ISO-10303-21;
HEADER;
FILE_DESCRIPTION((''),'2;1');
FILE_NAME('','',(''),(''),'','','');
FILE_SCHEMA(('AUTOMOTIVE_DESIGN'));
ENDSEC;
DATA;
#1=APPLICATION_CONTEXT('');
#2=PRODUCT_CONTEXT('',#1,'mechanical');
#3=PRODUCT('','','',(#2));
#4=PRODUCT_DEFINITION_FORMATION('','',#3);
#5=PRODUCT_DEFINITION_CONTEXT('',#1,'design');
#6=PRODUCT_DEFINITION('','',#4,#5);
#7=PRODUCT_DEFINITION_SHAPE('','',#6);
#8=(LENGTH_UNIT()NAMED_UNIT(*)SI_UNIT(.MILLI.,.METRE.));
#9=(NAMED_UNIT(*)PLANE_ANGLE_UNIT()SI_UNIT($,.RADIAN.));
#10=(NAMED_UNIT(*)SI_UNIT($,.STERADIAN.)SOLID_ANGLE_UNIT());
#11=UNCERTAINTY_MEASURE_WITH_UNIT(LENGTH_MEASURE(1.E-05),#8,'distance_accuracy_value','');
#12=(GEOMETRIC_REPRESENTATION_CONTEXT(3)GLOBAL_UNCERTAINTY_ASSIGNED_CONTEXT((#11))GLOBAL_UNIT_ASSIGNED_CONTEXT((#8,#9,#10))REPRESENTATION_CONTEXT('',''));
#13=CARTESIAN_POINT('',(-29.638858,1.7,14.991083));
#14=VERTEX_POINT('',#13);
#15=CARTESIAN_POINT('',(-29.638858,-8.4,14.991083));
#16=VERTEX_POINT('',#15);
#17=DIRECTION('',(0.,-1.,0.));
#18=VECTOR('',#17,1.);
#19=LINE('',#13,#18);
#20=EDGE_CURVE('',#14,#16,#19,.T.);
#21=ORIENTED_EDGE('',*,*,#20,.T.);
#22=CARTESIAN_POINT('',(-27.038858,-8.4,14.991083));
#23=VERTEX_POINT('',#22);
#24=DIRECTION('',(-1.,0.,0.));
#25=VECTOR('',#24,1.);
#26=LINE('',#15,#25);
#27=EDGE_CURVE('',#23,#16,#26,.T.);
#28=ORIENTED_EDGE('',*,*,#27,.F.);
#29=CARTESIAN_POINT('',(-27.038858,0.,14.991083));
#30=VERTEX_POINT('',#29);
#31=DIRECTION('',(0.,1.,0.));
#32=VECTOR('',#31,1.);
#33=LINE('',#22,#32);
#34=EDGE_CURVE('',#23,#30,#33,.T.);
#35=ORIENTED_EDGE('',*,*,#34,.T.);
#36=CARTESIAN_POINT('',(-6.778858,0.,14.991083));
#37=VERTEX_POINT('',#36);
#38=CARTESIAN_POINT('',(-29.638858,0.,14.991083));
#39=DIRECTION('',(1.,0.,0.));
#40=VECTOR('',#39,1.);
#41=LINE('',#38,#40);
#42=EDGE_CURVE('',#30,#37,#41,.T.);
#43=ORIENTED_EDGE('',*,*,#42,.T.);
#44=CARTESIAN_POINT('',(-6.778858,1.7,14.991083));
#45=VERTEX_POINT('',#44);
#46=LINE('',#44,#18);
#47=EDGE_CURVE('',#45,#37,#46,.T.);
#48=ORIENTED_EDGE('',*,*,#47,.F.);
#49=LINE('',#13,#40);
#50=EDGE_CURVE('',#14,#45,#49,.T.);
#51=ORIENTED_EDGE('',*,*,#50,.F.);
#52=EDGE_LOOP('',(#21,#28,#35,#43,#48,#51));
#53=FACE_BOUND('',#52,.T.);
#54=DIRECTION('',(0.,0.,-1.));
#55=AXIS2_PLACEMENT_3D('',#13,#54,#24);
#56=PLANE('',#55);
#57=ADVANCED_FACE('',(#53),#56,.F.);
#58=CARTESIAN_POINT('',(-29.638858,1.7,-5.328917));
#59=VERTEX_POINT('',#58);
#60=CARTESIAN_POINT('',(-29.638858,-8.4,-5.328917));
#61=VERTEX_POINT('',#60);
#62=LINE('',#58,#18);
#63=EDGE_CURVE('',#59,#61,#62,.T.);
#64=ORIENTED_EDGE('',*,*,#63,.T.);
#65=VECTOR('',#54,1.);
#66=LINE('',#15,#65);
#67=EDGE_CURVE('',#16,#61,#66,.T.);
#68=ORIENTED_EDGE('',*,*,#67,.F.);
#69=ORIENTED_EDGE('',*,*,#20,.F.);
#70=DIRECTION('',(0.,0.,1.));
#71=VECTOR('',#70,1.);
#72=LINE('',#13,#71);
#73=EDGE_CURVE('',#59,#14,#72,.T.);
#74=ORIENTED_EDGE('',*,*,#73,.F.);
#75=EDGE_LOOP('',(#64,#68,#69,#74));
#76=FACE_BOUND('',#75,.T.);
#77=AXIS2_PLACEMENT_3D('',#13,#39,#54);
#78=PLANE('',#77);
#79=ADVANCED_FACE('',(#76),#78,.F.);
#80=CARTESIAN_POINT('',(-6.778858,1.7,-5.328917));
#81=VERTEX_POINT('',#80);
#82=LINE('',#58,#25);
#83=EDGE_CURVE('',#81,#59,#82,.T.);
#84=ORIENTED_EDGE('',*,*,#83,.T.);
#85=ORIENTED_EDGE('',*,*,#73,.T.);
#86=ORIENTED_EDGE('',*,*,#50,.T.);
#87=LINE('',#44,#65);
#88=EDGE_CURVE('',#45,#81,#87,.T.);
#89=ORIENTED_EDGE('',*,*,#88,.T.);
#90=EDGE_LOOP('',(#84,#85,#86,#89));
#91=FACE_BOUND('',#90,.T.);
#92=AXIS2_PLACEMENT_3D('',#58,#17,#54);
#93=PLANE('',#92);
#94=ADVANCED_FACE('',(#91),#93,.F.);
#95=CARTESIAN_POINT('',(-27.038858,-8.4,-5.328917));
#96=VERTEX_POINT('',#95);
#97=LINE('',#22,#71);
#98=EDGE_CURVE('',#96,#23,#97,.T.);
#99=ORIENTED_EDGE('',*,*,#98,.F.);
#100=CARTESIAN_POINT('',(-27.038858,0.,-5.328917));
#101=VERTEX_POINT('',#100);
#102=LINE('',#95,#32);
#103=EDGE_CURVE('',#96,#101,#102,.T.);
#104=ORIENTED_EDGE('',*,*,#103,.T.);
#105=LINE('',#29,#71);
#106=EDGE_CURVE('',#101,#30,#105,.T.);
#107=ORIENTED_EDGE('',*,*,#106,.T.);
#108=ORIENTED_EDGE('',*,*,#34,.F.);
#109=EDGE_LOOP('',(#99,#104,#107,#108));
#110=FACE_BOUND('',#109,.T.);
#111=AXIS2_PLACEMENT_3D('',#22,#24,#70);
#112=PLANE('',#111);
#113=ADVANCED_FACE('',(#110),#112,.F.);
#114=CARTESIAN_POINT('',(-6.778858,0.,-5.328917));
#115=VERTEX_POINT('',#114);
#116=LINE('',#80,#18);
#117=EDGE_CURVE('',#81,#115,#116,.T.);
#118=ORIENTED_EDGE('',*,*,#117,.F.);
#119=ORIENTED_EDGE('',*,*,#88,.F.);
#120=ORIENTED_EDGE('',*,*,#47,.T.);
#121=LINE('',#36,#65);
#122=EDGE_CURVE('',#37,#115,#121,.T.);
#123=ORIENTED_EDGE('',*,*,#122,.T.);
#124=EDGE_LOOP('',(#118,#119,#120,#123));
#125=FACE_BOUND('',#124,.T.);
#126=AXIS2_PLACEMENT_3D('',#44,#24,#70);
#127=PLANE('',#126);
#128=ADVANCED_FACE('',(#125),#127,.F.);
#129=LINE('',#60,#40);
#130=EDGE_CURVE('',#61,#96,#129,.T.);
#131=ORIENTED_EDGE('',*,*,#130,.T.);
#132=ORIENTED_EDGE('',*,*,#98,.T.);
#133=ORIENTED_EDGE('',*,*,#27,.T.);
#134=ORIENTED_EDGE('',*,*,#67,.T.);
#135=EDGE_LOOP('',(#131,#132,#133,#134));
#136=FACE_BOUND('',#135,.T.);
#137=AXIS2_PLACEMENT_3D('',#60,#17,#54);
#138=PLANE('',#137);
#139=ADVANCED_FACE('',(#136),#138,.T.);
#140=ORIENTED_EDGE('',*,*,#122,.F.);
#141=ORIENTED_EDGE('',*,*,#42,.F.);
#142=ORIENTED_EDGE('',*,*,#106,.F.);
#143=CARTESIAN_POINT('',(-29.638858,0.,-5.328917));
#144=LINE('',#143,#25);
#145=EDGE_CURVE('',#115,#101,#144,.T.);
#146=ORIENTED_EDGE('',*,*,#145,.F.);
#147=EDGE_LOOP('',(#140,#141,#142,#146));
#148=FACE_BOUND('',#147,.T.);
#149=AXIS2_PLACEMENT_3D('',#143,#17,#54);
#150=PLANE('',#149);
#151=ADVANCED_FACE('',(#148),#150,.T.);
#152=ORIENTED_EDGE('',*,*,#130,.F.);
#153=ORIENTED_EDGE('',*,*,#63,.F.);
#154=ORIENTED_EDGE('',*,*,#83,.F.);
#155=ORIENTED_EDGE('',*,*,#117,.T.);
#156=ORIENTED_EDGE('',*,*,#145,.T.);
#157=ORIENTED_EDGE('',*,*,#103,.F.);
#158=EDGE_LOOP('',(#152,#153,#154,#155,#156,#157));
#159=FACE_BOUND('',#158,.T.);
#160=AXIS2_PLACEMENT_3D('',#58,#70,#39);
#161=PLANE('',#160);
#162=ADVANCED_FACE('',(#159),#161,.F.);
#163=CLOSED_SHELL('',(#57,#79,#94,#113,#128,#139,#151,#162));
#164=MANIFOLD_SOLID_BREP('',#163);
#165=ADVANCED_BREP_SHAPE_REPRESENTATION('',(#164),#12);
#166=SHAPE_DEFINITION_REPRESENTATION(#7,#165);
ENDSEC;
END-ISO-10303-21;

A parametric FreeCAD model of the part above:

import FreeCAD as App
import Part
import Sketcher
from FreeCAD import Vector
Q = App.Units.Quantity


def add_polygon(sketch, points):
    """Adds a closed chain of lines whose ends are joined by coincident constraints."""
    first, n = sketch.GeometryCount, len(points)
    for a, b in zip(points, points[1:] + points[:1]):
        sketch.addGeometry(Part.LineSegment(App.Vector(*a, 0), App.Vector(*b, 0)), False)
    for i in range(n):
        sketch.addConstraint(Sketcher.Constraint("Coincident", first + i, 2, first + (i + 1) % n, 1))

doc = App.newDocument("Part")
body = doc.addObject("PartDesign::Body", "Body")

# Sketch on XZ plane
sketch1 = body.newObject("Sketcher::SketchObject", "Sketch")
sketch1.AttachmentSupport = (doc.getObject("XZ_Plane"), [""])
sketch1.MapMode = "FlatFace"
add_polygon(sketch1, [(-30, -5), (-30, 15), (-7, 15), (-7, -5)])  # lines 0-3
sketch1.addConstraint([
    Sketcher.Constraint("Vertical", 0),
    Sketcher.Constraint("Horizontal", 1),
    Sketcher.Constraint("Vertical", 2),
    Sketcher.Constraint("Horizontal", 3),
    Sketcher.Constraint("DistanceX", 1, 1, 1, 2, Q("22.86 mm")),
    Sketcher.Constraint("DistanceY", 0, 1, 0, 2, Q("20.32 mm")),
    Sketcher.Constraint("DistanceX", 0, 2, -1, 1, Q("29.638858 mm")),
    Sketcher.Constraint("DistanceY", -1, 1, 0, 2, Q("14.991083 mm")),
])
pad1 = body.newObject("PartDesign::Pad", "Pad")
pad1.Profile = sketch1
pad1.Length = 1.7
pad1.Reversed = True

# Sketch on XZ plane
sketch2 = body.newObject("Sketcher::SketchObject", "Sketch001")
sketch2.AttachmentSupport = (doc.getObject("XZ_Plane"), [""])
sketch2.MapMode = "FlatFace"
add_polygon(sketch2, [(-29.6, 15), (-29.6, -5.3), (-27, -5.3), (-27, 15)])  # lines 0-3
sketch2.addConstraint([
    Sketcher.Constraint("Vertical", 0),
    Sketcher.Constraint("Horizontal", 1),
    Sketcher.Constraint("Vertical", 2),
    Sketcher.Constraint("Horizontal", 3),
    Sketcher.Constraint("DistanceX", 1, 1, 1, 2, Q("2.6 mm")),
    Sketcher.Constraint("DistanceY", 0, 2, 0, 1, Q("20.32 mm")),
    Sketcher.Constraint("DistanceX", 0, 2, -1, 1, Q("29.638858 mm")),
    Sketcher.Constraint("DistanceY", 0, 2, -1, 1, Q("5.328917 mm")),
])
pad2 = body.newObject("PartDesign::Pad", "Pad001")
pad2.Profile = sketch2
pad2.Length = 8.4

doc.recompute()
